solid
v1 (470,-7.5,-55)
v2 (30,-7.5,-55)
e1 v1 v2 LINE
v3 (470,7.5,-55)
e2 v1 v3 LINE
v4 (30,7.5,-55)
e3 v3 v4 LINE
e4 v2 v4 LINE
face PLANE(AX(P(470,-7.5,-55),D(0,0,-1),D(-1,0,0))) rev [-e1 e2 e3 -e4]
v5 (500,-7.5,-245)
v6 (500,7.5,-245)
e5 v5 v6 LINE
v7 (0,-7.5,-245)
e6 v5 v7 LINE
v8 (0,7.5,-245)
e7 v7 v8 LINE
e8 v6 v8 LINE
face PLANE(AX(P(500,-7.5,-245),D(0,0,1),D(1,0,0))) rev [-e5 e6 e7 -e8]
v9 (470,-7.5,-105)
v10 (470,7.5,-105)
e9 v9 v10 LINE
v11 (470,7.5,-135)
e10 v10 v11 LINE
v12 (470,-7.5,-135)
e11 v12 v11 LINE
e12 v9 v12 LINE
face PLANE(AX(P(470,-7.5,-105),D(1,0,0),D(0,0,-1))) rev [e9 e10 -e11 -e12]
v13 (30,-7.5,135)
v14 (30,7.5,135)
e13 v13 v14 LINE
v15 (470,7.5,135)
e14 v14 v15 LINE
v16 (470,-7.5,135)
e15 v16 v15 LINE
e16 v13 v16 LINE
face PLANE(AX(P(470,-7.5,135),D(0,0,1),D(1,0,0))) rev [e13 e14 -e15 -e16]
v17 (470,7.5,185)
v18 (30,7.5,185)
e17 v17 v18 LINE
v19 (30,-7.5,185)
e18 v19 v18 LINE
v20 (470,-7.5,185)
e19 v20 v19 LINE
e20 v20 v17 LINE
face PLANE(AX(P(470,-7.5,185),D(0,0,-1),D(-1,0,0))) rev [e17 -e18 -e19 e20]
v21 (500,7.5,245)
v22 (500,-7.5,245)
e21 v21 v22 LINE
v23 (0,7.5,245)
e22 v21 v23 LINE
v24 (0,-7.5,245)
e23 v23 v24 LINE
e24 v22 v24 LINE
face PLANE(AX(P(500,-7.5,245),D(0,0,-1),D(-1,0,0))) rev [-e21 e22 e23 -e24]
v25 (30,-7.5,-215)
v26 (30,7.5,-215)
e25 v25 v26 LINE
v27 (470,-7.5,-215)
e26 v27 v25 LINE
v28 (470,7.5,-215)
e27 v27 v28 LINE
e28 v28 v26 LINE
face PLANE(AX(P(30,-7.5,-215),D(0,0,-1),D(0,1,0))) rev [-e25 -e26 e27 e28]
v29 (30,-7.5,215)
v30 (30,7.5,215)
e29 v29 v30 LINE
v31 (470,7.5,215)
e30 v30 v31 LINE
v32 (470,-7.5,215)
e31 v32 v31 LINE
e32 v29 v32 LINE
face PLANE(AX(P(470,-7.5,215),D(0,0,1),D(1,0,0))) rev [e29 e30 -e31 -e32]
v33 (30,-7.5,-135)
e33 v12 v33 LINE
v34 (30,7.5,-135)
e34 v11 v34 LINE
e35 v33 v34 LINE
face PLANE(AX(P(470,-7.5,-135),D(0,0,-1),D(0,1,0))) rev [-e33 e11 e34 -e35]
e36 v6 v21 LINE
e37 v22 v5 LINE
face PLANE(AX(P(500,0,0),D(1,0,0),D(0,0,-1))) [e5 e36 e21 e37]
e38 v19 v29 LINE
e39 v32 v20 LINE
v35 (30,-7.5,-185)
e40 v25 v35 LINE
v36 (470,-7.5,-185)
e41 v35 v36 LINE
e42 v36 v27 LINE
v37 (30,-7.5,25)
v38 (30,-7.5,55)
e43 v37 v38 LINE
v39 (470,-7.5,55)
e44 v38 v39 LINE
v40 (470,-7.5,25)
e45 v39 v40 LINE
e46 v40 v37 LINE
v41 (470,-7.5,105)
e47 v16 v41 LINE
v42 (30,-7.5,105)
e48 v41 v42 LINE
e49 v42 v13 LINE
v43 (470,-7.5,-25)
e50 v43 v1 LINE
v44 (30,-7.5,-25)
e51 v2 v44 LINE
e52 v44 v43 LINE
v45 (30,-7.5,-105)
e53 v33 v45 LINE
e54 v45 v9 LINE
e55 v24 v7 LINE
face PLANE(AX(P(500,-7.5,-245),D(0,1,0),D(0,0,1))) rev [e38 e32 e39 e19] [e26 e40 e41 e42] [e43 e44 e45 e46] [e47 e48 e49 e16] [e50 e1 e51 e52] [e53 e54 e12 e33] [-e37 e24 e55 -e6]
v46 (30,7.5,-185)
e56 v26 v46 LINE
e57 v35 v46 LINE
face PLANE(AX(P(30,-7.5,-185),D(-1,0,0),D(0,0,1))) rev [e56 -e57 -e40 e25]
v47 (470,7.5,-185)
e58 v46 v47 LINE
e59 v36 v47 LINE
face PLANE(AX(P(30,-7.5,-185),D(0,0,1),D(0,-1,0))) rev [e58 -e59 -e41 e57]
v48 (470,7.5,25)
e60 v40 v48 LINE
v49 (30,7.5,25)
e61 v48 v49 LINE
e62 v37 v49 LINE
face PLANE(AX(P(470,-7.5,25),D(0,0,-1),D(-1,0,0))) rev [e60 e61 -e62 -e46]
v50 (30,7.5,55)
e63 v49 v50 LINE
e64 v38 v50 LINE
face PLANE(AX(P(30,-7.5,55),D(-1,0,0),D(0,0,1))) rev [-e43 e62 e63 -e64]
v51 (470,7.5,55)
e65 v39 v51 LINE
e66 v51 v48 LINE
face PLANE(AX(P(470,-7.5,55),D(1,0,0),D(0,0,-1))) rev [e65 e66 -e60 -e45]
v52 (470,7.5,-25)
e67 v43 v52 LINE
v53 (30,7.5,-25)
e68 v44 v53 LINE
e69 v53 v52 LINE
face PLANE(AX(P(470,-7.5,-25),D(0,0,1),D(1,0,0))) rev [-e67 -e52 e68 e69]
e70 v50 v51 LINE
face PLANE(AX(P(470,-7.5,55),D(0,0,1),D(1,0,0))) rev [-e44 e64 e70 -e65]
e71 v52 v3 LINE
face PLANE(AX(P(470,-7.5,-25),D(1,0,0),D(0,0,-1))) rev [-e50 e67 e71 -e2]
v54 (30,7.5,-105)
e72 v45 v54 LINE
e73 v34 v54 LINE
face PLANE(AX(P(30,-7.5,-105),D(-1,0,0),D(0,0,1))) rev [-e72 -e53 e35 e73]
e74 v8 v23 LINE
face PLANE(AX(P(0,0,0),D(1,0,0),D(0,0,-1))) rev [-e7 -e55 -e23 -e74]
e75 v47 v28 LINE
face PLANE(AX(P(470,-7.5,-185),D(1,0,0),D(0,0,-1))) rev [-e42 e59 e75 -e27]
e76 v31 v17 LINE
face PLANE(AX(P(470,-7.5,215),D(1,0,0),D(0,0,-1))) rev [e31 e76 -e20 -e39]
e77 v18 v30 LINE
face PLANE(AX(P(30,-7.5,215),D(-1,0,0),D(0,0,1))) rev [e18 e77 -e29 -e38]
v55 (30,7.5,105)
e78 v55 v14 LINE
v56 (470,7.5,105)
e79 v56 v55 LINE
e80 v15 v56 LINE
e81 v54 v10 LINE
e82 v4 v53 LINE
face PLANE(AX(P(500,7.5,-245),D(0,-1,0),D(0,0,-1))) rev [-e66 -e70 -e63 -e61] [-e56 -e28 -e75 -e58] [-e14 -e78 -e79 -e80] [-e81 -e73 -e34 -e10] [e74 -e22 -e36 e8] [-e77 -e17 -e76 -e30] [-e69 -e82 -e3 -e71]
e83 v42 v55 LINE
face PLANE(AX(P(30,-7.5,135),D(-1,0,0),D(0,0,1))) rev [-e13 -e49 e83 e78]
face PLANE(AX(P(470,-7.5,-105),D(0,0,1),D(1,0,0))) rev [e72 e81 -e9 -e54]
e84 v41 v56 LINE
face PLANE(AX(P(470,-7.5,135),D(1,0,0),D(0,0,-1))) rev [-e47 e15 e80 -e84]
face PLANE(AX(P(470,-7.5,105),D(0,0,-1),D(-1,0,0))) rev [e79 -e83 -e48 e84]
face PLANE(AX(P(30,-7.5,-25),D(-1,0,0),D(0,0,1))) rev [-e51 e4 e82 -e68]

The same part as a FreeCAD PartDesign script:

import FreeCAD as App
import Part
import Sketcher
Q = App.Units.Quantity


def add_polygon(sketch, points):
    """Adds a closed chain of lines whose ends are joined by coincident constraints."""
    first, n = sketch.GeometryCount, len(points)
    for a, b in zip(points, points[1:] + points[:1]):
        sketch.addGeometry(Part.LineSegment(App.Vector(*a, 0), App.Vector(*b, 0)), False)
    for i in range(n):
        sketch.addConstraint(Sketcher.Constraint("Coincident", first + i, 2, first + (i + 1) % n, 1))

doc = App.newDocument("Part")
params = doc.addObject("Spreadsheet::Sheet", "Params")
for row, (alias, value) in enumerate([
    ("sketch1_width", "15 mm"),
    ("sketch1_height", "490 mm"),
    ("pad1_length", "500 mm"),
    ("sketch2_width", "440 mm"),
    ("sketch2_height", "30 mm"),
    ("pocket1_length", "15 mm"),
], start=1):
    params.set(f"A{row}", alias)
    params.set(f"B{row}", "=" + value)
    params.setAlias(f"B{row}", alias)

body = doc.addObject("PartDesign::Body", "Body")

sketch1 = body.newObject("Sketcher::SketchObject", "Sketch")
sketch1.AttachmentSupport = (doc.getObject("YZ_Plane"), [""])
sketch1.MapMode = "FlatFace"
add_polygon(sketch1, [(7.5, 245), (-7.5, 245), (-7.5, -245), (7.5, -245)])
sketch1.addConstraint([
    Sketcher.Constraint("Horizontal", 0),
    Sketcher.Constraint("Vertical", 1),
    Sketcher.Constraint("Horizontal", 2),
    Sketcher.Constraint("Vertical", 3),
    Sketcher.Constraint("Symmetric", 0, 2, 2, 2, -1, 1),
    Sketcher.Constraint("DistanceX", 0, 2, 0, 1, Q("15 mm")),
    Sketcher.Constraint("DistanceY", 1, 2, 1, 1, Q("490 mm")),
])
sketch1.setExpression("Constraints[9]", "Params.sketch1_width")
sketch1.setExpression("Constraints[10]", "Params.sketch1_height")
pad1 = body.newObject("PartDesign::Pad", "Pad")
pad1.Profile = sketch1
pad1.setExpression("Length", "Params.pad1_length")

sketch2 = body.newObject("Sketcher::SketchObject", "Sketch001")
sketch2.AttachmentSupport = (doc.getObject("XZ_Plane"), [""])
sketch2.MapMode = "FlatFace"
sketch2.AttachmentOffset = App.Placement(App.Vector(0, 0, -7.5), App.Rotation())
add_polygon(sketch2, [(30, -215), (30, -185), (470, -185), (470, -215)])
add_polygon(sketch2, [(30, -135), (30, -105), (470, -105), (470, -135)])
add_polygon(sketch2, [(30, -55), (30, -25), (470, -25), (470, -55)])
add_polygon(sketch2, [(30, 25), (30, 55), (470, 55), (470, 25)])
add_polygon(sketch2, [(30, 105), (30, 135), (470, 135), (470, 105)])
add_polygon(sketch2, [(30, 185), (30, 215), (470, 215), (470, 185)])
sketch2.addConstraint([
    Sketcher.Constraint("Vertical", 0),
    Sketcher.Constraint("Horizontal", 1),
    Sketcher.Constraint("Vertical", 2),
    Sketcher.Constraint("Horizontal", 3),
    Sketcher.Constraint("Vertical", 4),
    Sketcher.Constraint("Horizontal", 5),
    Sketcher.Constraint("Vertical", 6),
    Sketcher.Constraint("Horizontal", 7),
    Sketcher.Constraint("Vertical", 8),
    Sketcher.Constraint("Horizontal", 9),
    Sketcher.Constraint("Vertical", 10),
    Sketcher.Constraint("Horizontal", 11),
    Sketcher.Constraint("Vertical", 12),
    Sketcher.Constraint("Horizontal", 13),
    Sketcher.Constraint("Vertical", 14),
    Sketcher.Constraint("Horizontal", 15),
    Sketcher.Constraint("Vertical", 16),
    Sketcher.Constraint("Horizontal", 17),
    Sketcher.Constraint("Vertical", 18),
    Sketcher.Constraint("Horizontal", 19),
    Sketcher.Constraint("Vertical", 20),
    Sketcher.Constraint("Horizontal", 21),
    Sketcher.Constraint("Vertical", 22),
    Sketcher.Constraint("Horizontal", 23),
    Sketcher.Constraint("Symmetric", 11, 2, 12, 2, -1),
    Sketcher.Constraint("Symmetric", 9, 2, 14, 2, -1),
    Sketcher.Constraint("Symmetric", 7, 2, 16, 2, -1),
    Sketcher.Constraint("Symmetric", 5, 2, 18, 2, -1),
    Sketcher.Constraint("Symmetric", 3, 2, 20, 2, -1),
    Sketcher.Constraint("Symmetric", 1, 2, 22, 2, -1),
    Sketcher.Constraint("Vertical", 3, 2, 4, 2),
    Sketcher.Constraint("Vertical", 2, 2, 5, 2),
    Sketcher.Constraint("Vertical", 7, 2, 8, 2),
    Sketcher.Constraint("Vertical", 6, 2, 9, 2),
    Sketcher.Constraint("Equal", 2, 4),
    Sketcher.Constraint("Equal", 6, 8),
    Sketcher.Constraint("DistanceX", 1, 1, 1, 2, Q("440 mm")),
    Sketcher.Constraint("DistanceY", 0, 1, 0, 2, Q("30 mm")),
    Sketcher.Constraint("DistanceX", -1, 1, 0, 2, Q("30 mm")),
    Sketcher.Constraint("DistanceY", 0, 2, -1, 1, Q("185 mm")),
    Sketcher.Constraint("DistanceY", 4, 2, -1, 1, Q("105 mm")),
    Sketcher.Constraint("DistanceY", 8, 2, -1, 1, Q("25 mm")),
])
sketch2.setExpression("Constraints[60]", "Params.sketch2_width")
sketch2.setExpression("Constraints[61]", "Params.sketch2_height")
pocket1 = body.newObject("PartDesign::Pocket", "Pocket")
pocket1.Profile = sketch2
pocket1.setExpression("Length", "Params.pocket1_length")
pocket1.Reversed = True

doc.recompute()
